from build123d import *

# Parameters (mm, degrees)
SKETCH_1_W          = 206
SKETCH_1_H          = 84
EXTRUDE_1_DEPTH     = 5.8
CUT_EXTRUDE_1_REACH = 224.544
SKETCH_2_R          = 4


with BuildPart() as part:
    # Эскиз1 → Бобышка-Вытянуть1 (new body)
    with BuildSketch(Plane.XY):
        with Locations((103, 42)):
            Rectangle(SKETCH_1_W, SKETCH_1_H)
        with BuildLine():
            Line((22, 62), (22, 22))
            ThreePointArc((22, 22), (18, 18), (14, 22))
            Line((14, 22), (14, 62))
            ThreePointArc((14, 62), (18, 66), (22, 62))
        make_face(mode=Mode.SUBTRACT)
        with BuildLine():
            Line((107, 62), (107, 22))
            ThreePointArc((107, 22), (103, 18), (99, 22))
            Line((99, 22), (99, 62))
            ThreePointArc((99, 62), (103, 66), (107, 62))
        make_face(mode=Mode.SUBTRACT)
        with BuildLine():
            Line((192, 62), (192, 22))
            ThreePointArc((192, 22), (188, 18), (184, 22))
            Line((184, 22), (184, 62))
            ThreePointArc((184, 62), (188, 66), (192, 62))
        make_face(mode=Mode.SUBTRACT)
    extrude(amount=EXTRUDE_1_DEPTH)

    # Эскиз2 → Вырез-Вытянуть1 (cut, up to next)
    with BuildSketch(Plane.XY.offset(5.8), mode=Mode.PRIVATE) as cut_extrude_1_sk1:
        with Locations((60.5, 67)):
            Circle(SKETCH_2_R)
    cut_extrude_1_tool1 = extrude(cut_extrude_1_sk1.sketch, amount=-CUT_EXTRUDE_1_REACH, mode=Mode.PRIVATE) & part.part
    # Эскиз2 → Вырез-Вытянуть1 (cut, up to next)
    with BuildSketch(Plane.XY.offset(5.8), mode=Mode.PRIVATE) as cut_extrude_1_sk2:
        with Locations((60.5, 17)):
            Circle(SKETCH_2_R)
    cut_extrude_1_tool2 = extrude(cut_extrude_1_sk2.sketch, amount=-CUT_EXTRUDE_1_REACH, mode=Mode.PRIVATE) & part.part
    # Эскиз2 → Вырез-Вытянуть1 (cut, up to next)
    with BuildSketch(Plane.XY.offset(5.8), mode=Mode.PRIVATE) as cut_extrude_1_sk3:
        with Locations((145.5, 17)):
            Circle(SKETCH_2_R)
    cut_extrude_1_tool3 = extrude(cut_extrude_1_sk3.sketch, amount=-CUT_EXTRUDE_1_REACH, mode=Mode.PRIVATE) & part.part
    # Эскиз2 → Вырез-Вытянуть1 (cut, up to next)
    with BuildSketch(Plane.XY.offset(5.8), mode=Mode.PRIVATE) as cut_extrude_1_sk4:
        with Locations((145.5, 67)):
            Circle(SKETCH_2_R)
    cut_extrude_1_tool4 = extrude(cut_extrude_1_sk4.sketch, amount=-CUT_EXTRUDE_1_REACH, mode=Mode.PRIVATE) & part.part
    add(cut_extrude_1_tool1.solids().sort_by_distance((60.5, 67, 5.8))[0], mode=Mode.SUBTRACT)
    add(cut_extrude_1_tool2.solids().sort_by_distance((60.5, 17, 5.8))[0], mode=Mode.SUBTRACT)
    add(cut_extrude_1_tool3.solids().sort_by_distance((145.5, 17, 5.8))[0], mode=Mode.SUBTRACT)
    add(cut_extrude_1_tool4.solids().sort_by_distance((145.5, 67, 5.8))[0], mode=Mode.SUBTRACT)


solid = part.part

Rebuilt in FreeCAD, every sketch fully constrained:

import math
import FreeCAD as App
import Part
import Sketcher

V = App.Vector
Q = App.Units.Quantity


def add_polygon(sketch, points):
    """Adds a closed chain of lines whose ends are joined by coincident constraints."""
    first, n = sketch.GeometryCount, len(points)
    for a, b in zip(points, points[1:] + points[:1]):
        sketch.addGeometry(Part.LineSegment(App.Vector(*a, 0), App.Vector(*b, 0)), False)
    for i in range(n):
        sketch.addConstraint(Sketcher.Constraint("Coincident", first + i, 2, first + (i + 1) % n, 1))

doc = App.newDocument("Part")
body = doc.addObject("PartDesign::Body", "Body")

# Sketch on XY plane
sketch1 = doc.addObject("Sketcher::SketchObject", "Sketch")
body.addObject(sketch1)
sketch1.AttachmentSupport = (doc.XY_Plane, [""])
sketch1.MapMode = "FlatFace"
add_polygon(sketch1, [(0, 84), (0, 0), (206, 0), (206, 84)])  # lines 0-3
sketch1.addGeometry(Part.ArcOfCircle(Part.Circle(V(18, 62, 0), V(0, 0, 1), 4), math.radians(0), math.radians(180)), False)  # 4
sketch1.addGeometry(Part.LineSegment(V(22, 62, 0), V(22, 22, 0)), False)  # 5
sketch1.addGeometry(Part.ArcOfCircle(Part.Circle(V(18, 22, 0), V(0, 0, 1), 4), math.radians(180), math.radians(360)), False)  # 6
sketch1.addGeometry(Part.LineSegment(V(14, 22, 0), V(14, 62, 0)), False)  # 7
sketch1.addGeometry(Part.ArcOfCircle(Part.Circle(V(103, 62, 0), V(0, 0, 1), 4), math.radians(0), math.radians(180)), False)  # 8
sketch1.addGeometry(Part.LineSegment(V(107, 62, 0), V(107, 22, 0)), False)  # 9
sketch1.addGeometry(Part.ArcOfCircle(Part.Circle(V(103, 22, 0), V(0, 0, 1), 4), math.radians(180), math.radians(360)), False)  # 10
sketch1.addGeometry(Part.LineSegment(V(99, 22, 0), V(99, 62, 0)), False)  # 11
sketch1.addGeometry(Part.ArcOfCircle(Part.Circle(V(188, 62, 0), V(0, 0, 1), 4), math.radians(0), math.radians(180)), False)  # 12
sketch1.addGeometry(Part.LineSegment(V(192, 62, 0), V(192, 22, 0)), False)  # 13
sketch1.addGeometry(Part.ArcOfCircle(Part.Circle(V(188, 22, 0), V(0, 0, 1), 4), math.radians(180), math.radians(360)), False)  # 14
sketch1.addGeometry(Part.LineSegment(V(184, 22, 0), V(184, 62, 0)), False)  # 15
sketch1.addConstraint([
    Sketcher.Constraint("Tangent", 4, 1, 5, 1),
    Sketcher.Constraint("Tangent", 5, 2, 6, 2),
    Sketcher.Constraint("Tangent", 6, 1, 7, 1),
    Sketcher.Constraint("Tangent", 7, 2, 4, 2),
    Sketcher.Constraint("Tangent", 8, 1, 9, 1),
    Sketcher.Constraint("Tangent", 9, 2, 10, 2),
    Sketcher.Constraint("Tangent", 10, 1, 11, 1),
    Sketcher.Constraint("Tangent", 11, 2, 8, 2),
    Sketcher.Constraint("Tangent", 12, 1, 13, 1),
    Sketcher.Constraint("Tangent", 13, 2, 14, 2),
    Sketcher.Constraint("Tangent", 14, 1, 15, 1),
    Sketcher.Constraint("Tangent", 15, 2, 12, 2),
    Sketcher.Constraint("Vertical", 0),
    Sketcher.Constraint("Horizontal", 1),
    Sketcher.Constraint("Vertical", 2),
    Sketcher.Constraint("Horizontal", 3),
    Sketcher.Constraint("Vertical", 5),
    Sketcher.Constraint("Vertical", 7),
    Sketcher.Constraint("Vertical", 9),
    Sketcher.Constraint("Vertical", 11),
    Sketcher.Constraint("Vertical", 13),
    Sketcher.Constraint("Vertical", 15),
    Sketcher.Constraint("Coincident", 0, 2, -1, 1),
    Sketcher.Constraint("Equal", 6, 8),
    Sketcher.Constraint("Equal", 10, 12),
    Sketcher.Constraint("Horizontal", 4, 3, 8, 3),
    Sketcher.Constraint("Horizontal", 6, 3, 10, 3),
    Sketcher.Constraint("Horizontal", 8, 3, 12, 3),
    Sketcher.Constraint("Horizontal", 10, 3, 14, 3),
    Sketcher.Constraint("Radius", 4, Q("4 mm")),
    Sketcher.Constraint("DistanceX", 1, 1, 1, 2, Q("206 mm")),
    Sketcher.Constraint("DistanceY", 0, 2, 0, 1, Q("84 mm")),
    Sketcher.Constraint("DistanceY", 5, 2, 5, 1, Q("40 mm")),
    Sketcher.Constraint("DistanceX", -1, 1, 4, 3, Q("18 mm")),
    Sketcher.Constraint("DistanceY", -1, 1, 4, 3, Q("62 mm")),
    Sketcher.Constraint("DistanceX", -1, 1, 8, 3, Q("103 mm")),
    Sketcher.Constraint("DistanceX", -1, 1, 12, 3, Q("188 mm")),
])
pad1 = doc.addObject("PartDesign::Pad", "Pad")
body.addObject(pad1)
pad1.Profile = sketch1
pad1.Length = 5.8

# Sketch on XY plane
sketch2 = doc.addObject("Sketcher::SketchObject", "Sketch001")
body.addObject(sketch2)
sketch2.AttachmentSupport = (doc.XY_Plane, [""])
sketch2.MapMode = "FlatFace"
sketch2.AttachmentOffset = App.Placement(V(0, 0, 5.8), App.Rotation())
sketch2.addGeometry(Part.Circle(V(60.5, 67, 0), V(0, 0, 1), 4), False)
sketch2.addConstraint([
    Sketcher.Constraint("Diameter", 0, Q("8 mm")),
    Sketcher.Constraint("DistanceY", -1, 1, 0, 3, Q("67 mm")),
    Sketcher.Constraint("DistanceX", -1, 1, 0, 3, Q("60.5 mm")),
])
pocket1 = doc.addObject("PartDesign::Pocket", "Pocket")
body.addObject(pocket1)
pocket1.Profile = sketch2
pocket1.Type = "UpToFirst"

# Sketch on XY plane
sketch3 = doc.addObject("Sketcher::SketchObject", "Sketch002")
body.addObject(sketch3)
sketch3.AttachmentSupport = (doc.XY_Plane, [""])
sketch3.MapMode = "FlatFace"
sketch3.AttachmentOffset = App.Placement(V(0, 0, 5.8), App.Rotation())
sketch3.addGeometry(Part.Circle(V(60.5, 17, 0), V(0, 0, 1), 4), False)
sketch3.addConstraint([
    Sketcher.Constraint("Diameter", 0, Q("8 mm")),
    Sketcher.Constraint("DistanceY", -1, 1, 0, 3, Q("17 mm")),
    Sketcher.Constraint("DistanceX", -1, 1, 0, 3, Q("60.5 mm")),
])
pocket2 = doc.addObject("PartDesign::Pocket", "Pocket001")
body.addObject(pocket2)
pocket2.Profile = sketch3
pocket2.Type = "UpToFirst"

# Sketch on XY plane
sketch4 = doc.addObject("Sketcher::SketchObject", "Sketch003")
body.addObject(sketch4)
sketch4.AttachmentSupport = (doc.XY_Plane, [""])
sketch4.MapMode = "FlatFace"
sketch4.AttachmentOffset = App.Placement(V(0, 0, 5.8), App.Rotation())
sketch4.addGeometry(Part.Circle(V(145.5, 17, 0), V(0, 0, 1), 4), False)
sketch4.addConstraint([
    Sketcher.Constraint("Diameter", 0, Q("8 mm")),
    Sketcher.Constraint("DistanceY", -1, 1, 0, 3, Q("17 mm")),
    Sketcher.Constraint("DistanceX", -1, 1, 0, 3, Q("145.5 mm")),
])
pocket3 = doc.addObject("PartDesign::Pocket", "Pocket002")
body.addObject(pocket3)
pocket3.Profile = sketch4
pocket3.Type = "UpToFirst"

# Sketch on XY plane
sketch5 = doc.addObject("Sketcher::SketchObject", "Sketch004")
body.addObject(sketch5)
sketch5.AttachmentSupport = (doc.XY_Plane, [""])
sketch5.MapMode = "FlatFace"
sketch5.AttachmentOffset = App.Placement(V(0, 0, 5.8), App.Rotation())
sketch5.addGeometry(Part.Circle(V(145.5, 67, 0), V(0, 0, 1), 4), False)
sketch5.addConstraint([
    Sketcher.Constraint("Diameter", 0, Q("8 mm")),
    Sketcher.Constraint("DistanceY", -1, 1, 0, 3, Q("67 mm")),
    Sketcher.Constraint("DistanceX", -1, 1, 0, 3, Q("145.5 mm")),
])
pocket4 = doc.addObject("PartDesign::Pocket", "Pocket003")
body.addObject(pocket4)
pocket4.Profile = sketch5
pocket4.Type = "UpToFirst"

doc.recompute()
